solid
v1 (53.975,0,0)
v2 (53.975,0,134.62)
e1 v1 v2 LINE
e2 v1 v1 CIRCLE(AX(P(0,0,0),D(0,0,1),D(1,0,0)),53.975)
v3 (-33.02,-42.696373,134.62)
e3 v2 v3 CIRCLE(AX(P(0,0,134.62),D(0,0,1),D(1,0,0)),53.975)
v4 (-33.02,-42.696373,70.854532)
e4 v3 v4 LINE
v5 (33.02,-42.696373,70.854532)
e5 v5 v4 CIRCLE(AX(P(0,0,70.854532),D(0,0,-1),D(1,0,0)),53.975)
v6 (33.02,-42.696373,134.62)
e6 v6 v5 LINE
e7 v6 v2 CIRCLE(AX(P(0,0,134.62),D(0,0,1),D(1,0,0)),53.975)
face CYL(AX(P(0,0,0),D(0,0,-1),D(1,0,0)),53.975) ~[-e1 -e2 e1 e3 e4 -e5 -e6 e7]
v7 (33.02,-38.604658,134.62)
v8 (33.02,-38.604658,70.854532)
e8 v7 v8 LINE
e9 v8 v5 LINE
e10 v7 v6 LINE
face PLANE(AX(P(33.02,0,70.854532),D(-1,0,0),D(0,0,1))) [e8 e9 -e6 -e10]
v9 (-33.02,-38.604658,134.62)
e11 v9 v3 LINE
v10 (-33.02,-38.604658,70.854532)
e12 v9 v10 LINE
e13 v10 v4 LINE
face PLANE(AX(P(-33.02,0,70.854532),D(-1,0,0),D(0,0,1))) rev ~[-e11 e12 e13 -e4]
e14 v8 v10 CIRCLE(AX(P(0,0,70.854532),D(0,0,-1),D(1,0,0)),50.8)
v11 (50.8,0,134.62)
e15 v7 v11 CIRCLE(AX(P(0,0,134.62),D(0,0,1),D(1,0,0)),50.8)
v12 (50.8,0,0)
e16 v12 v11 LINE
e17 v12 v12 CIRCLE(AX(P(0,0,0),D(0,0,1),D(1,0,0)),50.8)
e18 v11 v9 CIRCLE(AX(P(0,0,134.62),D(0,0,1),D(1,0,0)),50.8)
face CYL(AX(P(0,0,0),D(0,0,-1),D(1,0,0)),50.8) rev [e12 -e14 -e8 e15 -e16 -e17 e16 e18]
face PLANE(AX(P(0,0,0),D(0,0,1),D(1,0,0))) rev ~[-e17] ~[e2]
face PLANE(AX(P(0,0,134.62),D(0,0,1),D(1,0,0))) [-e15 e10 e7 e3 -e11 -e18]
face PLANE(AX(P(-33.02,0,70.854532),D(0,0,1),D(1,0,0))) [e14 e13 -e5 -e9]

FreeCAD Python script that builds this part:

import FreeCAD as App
import Part
import Sketcher
Q = App.Units.Quantity

doc = App.newDocument("Part")
params = doc.addObject("Spreadsheet::Sheet", "Params")
for row, (alias, value) in enumerate([
    ("sketch1_diameter", "4 in"),
    ("sketch1_diameter2", "4.25 in"),
    ("pad1_length", "5.3 in"),
    ("sketch2_height", "5 in"),
    ("sketch2_width", "2.6 in"),
    ("pocket1_length", "3.53 in"),
], start=1):
    params.set(f"A{row}", alias)
    params.set(f"B{row}", "=" + value)
    params.setAlias(f"B{row}", alias)

body = doc.addObject("PartDesign::Body", "Body")

sketch1 = doc.addObject("Sketcher::SketchObject", "Sketch")
body.addObject(sketch1)
sketch1.AttachmentSupport = (doc.XY_Plane, [""])
sketch1.MapMode = "FlatFace"
sketch1.addGeometry(Part.Circle(App.Vector(0, 0, 0), App.Vector(0, 0, 1), 54), False)
sketch1.addGeometry(Part.Circle(App.Vector(0, 0, 0), App.Vector(0, 0, 1), 51), False)
sketch1.addConstraint(Sketcher.Constraint("Coincident", 0, 3, -1, 1))
sketch1.addConstraint(Sketcher.Constraint("Coincident", 1, 3, -1, 1))
sketch1.addConstraint(Sketcher.Constraint("Diameter", 1, Q("4 in")))
sketch1.addConstraint(Sketcher.Constraint("Diameter", 0, Q("4.25 in")))
sketch1.setExpression("Constraints[2]", "Params.sketch1_diameter")
sketch1.setExpression("Constraints[3]", "Params.sketch1_diameter2")
pad1 = doc.addObject("PartDesign::Pad", "Pad")
body.addObject(pad1)
pad1.Profile = sketch1
pad1.setExpression("Length", "Params.pad1_length")

sketch2 = doc.addObject("Sketcher::SketchObject", "Sketch001")
body.addObject(sketch2)
sketch2.AttachmentSupport = (doc.XZ_Plane, [""])
sketch2.MapMode = "FlatFace"
sketch2.addGeometry(Part.LineSegment(App.Vector(-33, 198, 0), App.Vector(-33, 71, 0)), False)
sketch2.addGeometry(Part.LineSegment(App.Vector(-33, 71, 0), App.Vector(33, 71, 0)), False)
sketch2.addGeometry(Part.LineSegment(App.Vector(33, 71, 0), App.Vector(33, 198, 0)), False)
sketch2.addGeometry(Part.LineSegment(App.Vector(33, 198, 0), App.Vector(-33, 198, 0)), False)
sketch2.addConstraint(Sketcher.Constraint("Coincident", 0, 2, 1, 1))
sketch2.addConstraint(Sketcher.Constraint("Coincident", 1, 2, 2, 1))
sketch2.addConstraint(Sketcher.Constraint("Coincident", 2, 2, 3, 1))
sketch2.addConstraint(Sketcher.Constraint("Coincident", 3, 2, 0, 1))
sketch2.addConstraint(Sketcher.Constraint("Vertical", 0))
sketch2.addConstraint(Sketcher.Constraint("Horizontal", 1))
sketch2.addConstraint(Sketcher.Constraint("Vertical", 2))
sketch2.addConstraint(Sketcher.Constraint("Horizontal", 3))
sketch2.addConstraint(Sketcher.Constraint("DistanceY", 0, 2, 0, 1, Q("5 in")))
sketch2.addConstraint(Sketcher.Constraint("DistanceX", 1, 1, 1, 2, Q("2.6 in")))
sketch2.addConstraint(Sketcher.Constraint("DistanceX", 0, 2, -1, 1, Q("1.3 in")))
sketch2.addConstraint(Sketcher.Constraint("DistanceY", -1, 1, 2, 2, 197.854532))
sketch2.setExpression("Constraints[8]", "Params.sketch2_height")
sketch2.setExpression("Constraints[9]", "Params.sketch2_width")
pocket1 = doc.addObject("PartDesign::Pocket", "Pocket")
body.addObject(pocket1)
pocket1.Profile = sketch2
pocket1.setExpression("Length", "Params.pocket1_length")
pocket1.Reversed = True

doc.recompute()
